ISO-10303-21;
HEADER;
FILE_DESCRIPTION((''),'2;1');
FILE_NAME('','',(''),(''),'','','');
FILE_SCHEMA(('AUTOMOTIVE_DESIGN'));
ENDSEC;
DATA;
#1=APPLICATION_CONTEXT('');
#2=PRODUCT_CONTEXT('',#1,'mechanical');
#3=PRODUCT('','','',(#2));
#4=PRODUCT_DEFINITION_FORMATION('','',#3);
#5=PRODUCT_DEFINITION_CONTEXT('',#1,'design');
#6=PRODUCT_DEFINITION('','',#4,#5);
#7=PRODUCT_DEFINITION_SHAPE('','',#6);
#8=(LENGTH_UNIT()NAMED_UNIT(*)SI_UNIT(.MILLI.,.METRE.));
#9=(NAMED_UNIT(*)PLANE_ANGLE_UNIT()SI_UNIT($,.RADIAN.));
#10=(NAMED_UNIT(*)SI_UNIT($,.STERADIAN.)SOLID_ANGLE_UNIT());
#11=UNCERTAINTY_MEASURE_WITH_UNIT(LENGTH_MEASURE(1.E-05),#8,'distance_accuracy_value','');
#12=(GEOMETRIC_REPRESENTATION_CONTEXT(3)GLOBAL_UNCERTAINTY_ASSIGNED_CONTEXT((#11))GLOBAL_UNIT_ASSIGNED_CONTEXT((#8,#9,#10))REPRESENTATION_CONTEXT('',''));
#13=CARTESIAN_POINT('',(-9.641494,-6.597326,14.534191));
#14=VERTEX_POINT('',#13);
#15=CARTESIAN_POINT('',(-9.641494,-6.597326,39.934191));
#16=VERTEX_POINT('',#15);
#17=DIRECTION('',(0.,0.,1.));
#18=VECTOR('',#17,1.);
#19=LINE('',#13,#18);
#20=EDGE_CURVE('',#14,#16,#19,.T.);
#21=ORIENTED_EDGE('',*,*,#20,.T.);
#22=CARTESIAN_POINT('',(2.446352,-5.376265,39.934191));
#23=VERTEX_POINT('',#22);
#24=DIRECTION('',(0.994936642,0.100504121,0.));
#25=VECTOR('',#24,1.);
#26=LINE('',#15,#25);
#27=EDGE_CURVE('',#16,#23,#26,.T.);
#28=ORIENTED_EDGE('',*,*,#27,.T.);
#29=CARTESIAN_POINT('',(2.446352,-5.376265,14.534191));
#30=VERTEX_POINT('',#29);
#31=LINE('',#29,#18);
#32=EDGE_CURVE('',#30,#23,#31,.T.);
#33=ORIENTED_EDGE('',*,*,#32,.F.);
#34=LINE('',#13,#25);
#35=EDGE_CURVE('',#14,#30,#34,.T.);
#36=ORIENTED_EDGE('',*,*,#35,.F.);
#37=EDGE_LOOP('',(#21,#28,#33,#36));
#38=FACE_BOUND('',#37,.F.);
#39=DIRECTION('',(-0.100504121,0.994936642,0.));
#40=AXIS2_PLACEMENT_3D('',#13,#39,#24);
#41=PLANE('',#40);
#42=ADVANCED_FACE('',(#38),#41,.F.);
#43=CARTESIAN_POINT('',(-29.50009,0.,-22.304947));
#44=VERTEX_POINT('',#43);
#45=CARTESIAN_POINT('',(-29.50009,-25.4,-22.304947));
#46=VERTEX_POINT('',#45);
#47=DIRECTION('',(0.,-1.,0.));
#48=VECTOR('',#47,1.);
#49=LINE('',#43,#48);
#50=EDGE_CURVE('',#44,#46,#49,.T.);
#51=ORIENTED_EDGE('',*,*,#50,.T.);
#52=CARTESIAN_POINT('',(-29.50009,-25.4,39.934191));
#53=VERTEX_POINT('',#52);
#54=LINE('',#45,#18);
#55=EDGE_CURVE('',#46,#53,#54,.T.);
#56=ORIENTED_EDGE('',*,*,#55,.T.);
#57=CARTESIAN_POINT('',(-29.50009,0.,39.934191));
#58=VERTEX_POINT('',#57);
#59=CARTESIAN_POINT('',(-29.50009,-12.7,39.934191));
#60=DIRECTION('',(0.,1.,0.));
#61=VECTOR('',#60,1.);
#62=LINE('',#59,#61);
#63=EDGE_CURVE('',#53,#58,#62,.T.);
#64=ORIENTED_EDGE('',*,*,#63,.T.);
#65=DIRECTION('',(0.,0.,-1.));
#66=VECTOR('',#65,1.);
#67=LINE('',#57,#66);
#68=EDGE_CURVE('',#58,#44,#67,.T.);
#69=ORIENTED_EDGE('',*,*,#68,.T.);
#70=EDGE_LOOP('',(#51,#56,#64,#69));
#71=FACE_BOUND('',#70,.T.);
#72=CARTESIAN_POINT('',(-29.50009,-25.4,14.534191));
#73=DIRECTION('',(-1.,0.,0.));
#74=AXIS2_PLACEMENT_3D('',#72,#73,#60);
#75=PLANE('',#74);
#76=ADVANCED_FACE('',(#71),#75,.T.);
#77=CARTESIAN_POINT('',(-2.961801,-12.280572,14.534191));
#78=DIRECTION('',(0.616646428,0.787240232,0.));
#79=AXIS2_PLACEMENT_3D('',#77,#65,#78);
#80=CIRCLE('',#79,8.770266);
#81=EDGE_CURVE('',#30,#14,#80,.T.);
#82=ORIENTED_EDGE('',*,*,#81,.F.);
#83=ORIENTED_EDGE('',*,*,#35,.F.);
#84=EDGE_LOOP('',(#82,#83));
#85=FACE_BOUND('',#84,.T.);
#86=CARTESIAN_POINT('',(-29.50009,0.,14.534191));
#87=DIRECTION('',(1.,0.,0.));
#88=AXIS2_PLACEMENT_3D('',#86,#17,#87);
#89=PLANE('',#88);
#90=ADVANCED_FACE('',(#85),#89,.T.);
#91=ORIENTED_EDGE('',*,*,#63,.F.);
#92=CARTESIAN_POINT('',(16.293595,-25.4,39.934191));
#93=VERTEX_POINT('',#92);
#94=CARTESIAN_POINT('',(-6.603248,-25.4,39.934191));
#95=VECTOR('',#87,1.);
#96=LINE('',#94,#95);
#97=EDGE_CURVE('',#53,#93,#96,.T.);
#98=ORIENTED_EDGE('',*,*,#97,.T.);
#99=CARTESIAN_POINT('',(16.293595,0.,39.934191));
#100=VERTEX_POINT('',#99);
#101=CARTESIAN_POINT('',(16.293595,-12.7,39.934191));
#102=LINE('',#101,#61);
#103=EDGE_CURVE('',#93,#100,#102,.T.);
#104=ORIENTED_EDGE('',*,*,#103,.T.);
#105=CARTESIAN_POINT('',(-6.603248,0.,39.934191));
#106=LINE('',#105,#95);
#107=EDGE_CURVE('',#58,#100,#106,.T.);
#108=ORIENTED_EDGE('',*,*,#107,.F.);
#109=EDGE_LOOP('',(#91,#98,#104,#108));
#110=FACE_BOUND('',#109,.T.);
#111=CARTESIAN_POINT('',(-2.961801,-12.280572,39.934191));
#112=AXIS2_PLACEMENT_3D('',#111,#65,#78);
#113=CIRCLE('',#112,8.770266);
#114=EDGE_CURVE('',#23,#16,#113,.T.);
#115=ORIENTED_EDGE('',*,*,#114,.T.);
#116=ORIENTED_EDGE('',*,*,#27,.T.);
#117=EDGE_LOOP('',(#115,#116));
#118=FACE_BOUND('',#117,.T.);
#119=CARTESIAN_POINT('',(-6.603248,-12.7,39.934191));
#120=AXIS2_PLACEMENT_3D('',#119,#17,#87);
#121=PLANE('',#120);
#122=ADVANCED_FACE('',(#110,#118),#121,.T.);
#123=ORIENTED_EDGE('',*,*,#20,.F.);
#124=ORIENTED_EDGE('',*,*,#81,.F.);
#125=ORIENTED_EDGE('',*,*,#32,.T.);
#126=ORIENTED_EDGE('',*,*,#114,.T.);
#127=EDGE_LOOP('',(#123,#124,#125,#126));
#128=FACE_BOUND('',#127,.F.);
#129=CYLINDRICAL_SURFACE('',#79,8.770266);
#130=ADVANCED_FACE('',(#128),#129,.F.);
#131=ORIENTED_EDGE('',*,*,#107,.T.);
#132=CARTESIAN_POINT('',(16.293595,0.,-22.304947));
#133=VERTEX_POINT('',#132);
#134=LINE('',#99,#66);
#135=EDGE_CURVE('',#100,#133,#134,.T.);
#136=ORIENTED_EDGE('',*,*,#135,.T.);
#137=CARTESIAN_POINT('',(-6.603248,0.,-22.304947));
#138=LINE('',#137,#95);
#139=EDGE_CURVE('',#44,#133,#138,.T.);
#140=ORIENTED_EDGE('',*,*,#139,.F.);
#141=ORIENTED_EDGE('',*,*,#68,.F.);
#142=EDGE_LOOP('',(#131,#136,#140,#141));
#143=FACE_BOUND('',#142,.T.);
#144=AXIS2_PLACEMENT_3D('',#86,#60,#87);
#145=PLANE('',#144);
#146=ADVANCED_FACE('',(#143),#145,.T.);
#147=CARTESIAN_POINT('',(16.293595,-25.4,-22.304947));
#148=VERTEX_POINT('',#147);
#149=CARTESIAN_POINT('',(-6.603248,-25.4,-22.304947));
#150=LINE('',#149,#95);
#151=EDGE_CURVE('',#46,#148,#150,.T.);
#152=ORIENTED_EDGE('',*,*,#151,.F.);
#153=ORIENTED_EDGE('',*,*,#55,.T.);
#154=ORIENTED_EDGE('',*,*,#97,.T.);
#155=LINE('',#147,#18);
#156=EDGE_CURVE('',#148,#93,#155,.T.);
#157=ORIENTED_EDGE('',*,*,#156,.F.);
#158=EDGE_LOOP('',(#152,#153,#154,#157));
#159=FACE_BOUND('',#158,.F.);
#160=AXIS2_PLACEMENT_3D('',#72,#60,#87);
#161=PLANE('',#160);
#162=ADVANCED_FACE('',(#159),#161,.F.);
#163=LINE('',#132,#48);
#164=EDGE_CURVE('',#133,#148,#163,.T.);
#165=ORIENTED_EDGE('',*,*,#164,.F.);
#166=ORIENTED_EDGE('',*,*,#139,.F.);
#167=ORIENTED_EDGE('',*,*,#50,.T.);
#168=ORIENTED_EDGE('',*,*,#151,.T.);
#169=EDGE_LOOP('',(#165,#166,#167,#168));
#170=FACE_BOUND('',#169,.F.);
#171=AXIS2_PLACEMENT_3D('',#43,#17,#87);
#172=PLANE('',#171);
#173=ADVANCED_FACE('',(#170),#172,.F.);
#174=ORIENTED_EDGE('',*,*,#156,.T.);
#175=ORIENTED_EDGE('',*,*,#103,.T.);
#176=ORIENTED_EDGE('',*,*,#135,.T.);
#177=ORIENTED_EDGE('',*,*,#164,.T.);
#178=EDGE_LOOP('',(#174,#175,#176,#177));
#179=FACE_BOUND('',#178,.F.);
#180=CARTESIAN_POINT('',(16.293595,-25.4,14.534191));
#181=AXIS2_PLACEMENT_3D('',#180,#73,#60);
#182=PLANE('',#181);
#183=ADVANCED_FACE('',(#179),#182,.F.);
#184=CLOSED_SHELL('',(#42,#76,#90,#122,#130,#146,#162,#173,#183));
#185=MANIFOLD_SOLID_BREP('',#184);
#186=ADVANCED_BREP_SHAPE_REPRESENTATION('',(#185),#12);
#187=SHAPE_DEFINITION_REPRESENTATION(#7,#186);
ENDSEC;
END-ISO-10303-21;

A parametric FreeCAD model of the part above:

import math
import FreeCAD as App
import Part
import Sketcher

V = App.Vector
Q = App.Units.Quantity

doc = App.newDocument("Part")
body = doc.addObject("PartDesign::Body", "Body")

sketch1 = body.newObject("Sketcher::SketchObject", "Sketch")
sketch1.AttachmentSupport = (doc.getObject("XZ_Plane"), [""])
sketch1.MapMode = "FlatFace"
sketch1.addGeometry(Part.LineSegment(V(-29.50009, 14.534191, 0), V(-29.50009, -22.304947, 0)), False)
sketch1.addGeometry(Part.LineSegment(V(-29.50009, -22.304947, 0), V(16.293595, -22.304947, 0)), False)
sketch1.addGeometry(Part.LineSegment(V(16.293595, -22.304947, 0), V(16.293595, 14.534191, 0)), False)
sketch1.addGeometry(Part.LineSegment(V(16.293595, 14.534191, 0), V(-29.50009, 14.534191, 0)), False)
sketch1.addConstraint(Sketcher.Constraint("Coincident", 0, 2, 1, 1))
sketch1.addConstraint(Sketcher.Constraint("Coincident", 1, 2, 2, 1))
sketch1.addConstraint(Sketcher.Constraint("Coincident", 2, 2, 3, 1))
sketch1.addConstraint(Sketcher.Constraint("Coincident", 3, 2, 0, 1))
sketch1.addConstraint(Sketcher.Constraint("Vertical", 0))
sketch1.addConstraint(Sketcher.Constraint("Horizontal", 1))
sketch1.addConstraint(Sketcher.Constraint("Vertical", 2))
sketch1.addConstraint(Sketcher.Constraint("Horizontal", 3))
sketch1.addConstraint(Sketcher.Constraint("DistanceX", 1, 1, 1, 2, 45.793685))
sketch1.addConstraint(Sketcher.Constraint("DistanceY", 0, 2, 0, 1, 36.839138))
sketch1.addConstraint(Sketcher.Constraint("DistanceX", 0, 2, -1, 1, 29.50009))
sketch1.addConstraint(Sketcher.Constraint("DistanceY", -1, 1, 2, 2, 14.534191))
pad1 = body.newObject("PartDesign::Pad", "Pad")
pad1.Profile = sketch1
pad1.Length = Q("1 in")

sketch2 = body.newObject("Sketcher::SketchObject", "Sketch001")
sketch2.AttachmentSupport = (doc.getObject("XY_Plane"), [""])
sketch2.MapMode = "FlatFace"
sketch2.AttachmentOffset = App.Placement(V(0, 0, 14.534191), App.Rotation())
sketch2.addGeometry(Part.LineSegment(V(-29.50009, 0, 0), V(-29.50009, -25.4, 0)), False)
sketch2.addGeometry(Part.LineSegment(V(-29.50009, -25.4, 0), V(16.293595, -25.4, 0)), False)
sketch2.addGeometry(Part.LineSegment(V(16.293595, -25.4, 0), V(16.293595, 0, 0)), False)
sketch2.addGeometry(Part.LineSegment(V(16.293595, 0, 0), V(-29.50009, 0, 0)), False)
sketch2.addGeometry(Part.LineSegment(V(-9.641494, -6.597326, 0), V(2.446352, -5.376265, 0)), False)
sketch2.addGeometry(Part.ArcOfCircle(Part.Circle(V(-2.961801, -12.280572, 0), V(0, 0, 1), 8.770266), math.radians(139.608052), math.radians(411.92835)), False)
sketch2.addConstraint(Sketcher.Constraint("Coincident", 0, 2, 1, 1))
sketch2.addConstraint(Sketcher.Constraint("Coincident", 1, 2, 2, 1))
sketch2.addConstraint(Sketcher.Constraint("Coincident", 2, 2, 3, 1))
sketch2.addConstraint(Sketcher.Constraint("Coincident", 3, 2, 0, 1))
sketch2.addConstraint(Sketcher.Constraint("Coincident", 4, 1, 5, 1))
sketch2.addConstraint(Sketcher.Constraint("Coincident", 5, 2, 4, 2))
sketch2.addConstraint(Sketcher.Constraint("Vertical", 0))
sketch2.addConstraint(Sketcher.Constraint("Horizontal", 1))
sketch2.addConstraint(Sketcher.Constraint("Vertical", 2))
sketch2.addConstraint(Sketcher.Constraint("Horizontal", 3))
sketch2.addConstraint(Sketcher.Constraint("PointOnObject", 2, 2, -1))
sketch2.addConstraint(Sketcher.Constraint("DistanceY", 0, 2, 0, 1, Q("1 in")))
sketch2.addConstraint(Sketcher.Constraint("Radius", 5, 8.770266))
sketch2.addConstraint(Sketcher.Constraint("DistanceX", 5, 3, -1, 1, 2.961801))
sketch2.addConstraint(Sketcher.Constraint("DistanceX", 1, 1, 1, 2, 45.793685))
sketch2.addConstraint(Sketcher.Constraint("DistanceY", 5, 3, -1, 1, 12.280572))
sketch2.addConstraint(Sketcher.Constraint("DistanceX", 0, 2, -1, 1, 29.50009))
sketch2.addConstraint(Sketcher.Constraint("DistanceX", 4, 1, 2, 2, 25.935088))
sketch2.addConstraint(Sketcher.Constraint("DistanceY", 4, 1, 5, 2, 1.221061))
pad2 = body.newObject("PartDesign::Pad", "Pad001")
pad2.Profile = sketch2
pad2.Length = Q("1 in")

doc.recompute()
